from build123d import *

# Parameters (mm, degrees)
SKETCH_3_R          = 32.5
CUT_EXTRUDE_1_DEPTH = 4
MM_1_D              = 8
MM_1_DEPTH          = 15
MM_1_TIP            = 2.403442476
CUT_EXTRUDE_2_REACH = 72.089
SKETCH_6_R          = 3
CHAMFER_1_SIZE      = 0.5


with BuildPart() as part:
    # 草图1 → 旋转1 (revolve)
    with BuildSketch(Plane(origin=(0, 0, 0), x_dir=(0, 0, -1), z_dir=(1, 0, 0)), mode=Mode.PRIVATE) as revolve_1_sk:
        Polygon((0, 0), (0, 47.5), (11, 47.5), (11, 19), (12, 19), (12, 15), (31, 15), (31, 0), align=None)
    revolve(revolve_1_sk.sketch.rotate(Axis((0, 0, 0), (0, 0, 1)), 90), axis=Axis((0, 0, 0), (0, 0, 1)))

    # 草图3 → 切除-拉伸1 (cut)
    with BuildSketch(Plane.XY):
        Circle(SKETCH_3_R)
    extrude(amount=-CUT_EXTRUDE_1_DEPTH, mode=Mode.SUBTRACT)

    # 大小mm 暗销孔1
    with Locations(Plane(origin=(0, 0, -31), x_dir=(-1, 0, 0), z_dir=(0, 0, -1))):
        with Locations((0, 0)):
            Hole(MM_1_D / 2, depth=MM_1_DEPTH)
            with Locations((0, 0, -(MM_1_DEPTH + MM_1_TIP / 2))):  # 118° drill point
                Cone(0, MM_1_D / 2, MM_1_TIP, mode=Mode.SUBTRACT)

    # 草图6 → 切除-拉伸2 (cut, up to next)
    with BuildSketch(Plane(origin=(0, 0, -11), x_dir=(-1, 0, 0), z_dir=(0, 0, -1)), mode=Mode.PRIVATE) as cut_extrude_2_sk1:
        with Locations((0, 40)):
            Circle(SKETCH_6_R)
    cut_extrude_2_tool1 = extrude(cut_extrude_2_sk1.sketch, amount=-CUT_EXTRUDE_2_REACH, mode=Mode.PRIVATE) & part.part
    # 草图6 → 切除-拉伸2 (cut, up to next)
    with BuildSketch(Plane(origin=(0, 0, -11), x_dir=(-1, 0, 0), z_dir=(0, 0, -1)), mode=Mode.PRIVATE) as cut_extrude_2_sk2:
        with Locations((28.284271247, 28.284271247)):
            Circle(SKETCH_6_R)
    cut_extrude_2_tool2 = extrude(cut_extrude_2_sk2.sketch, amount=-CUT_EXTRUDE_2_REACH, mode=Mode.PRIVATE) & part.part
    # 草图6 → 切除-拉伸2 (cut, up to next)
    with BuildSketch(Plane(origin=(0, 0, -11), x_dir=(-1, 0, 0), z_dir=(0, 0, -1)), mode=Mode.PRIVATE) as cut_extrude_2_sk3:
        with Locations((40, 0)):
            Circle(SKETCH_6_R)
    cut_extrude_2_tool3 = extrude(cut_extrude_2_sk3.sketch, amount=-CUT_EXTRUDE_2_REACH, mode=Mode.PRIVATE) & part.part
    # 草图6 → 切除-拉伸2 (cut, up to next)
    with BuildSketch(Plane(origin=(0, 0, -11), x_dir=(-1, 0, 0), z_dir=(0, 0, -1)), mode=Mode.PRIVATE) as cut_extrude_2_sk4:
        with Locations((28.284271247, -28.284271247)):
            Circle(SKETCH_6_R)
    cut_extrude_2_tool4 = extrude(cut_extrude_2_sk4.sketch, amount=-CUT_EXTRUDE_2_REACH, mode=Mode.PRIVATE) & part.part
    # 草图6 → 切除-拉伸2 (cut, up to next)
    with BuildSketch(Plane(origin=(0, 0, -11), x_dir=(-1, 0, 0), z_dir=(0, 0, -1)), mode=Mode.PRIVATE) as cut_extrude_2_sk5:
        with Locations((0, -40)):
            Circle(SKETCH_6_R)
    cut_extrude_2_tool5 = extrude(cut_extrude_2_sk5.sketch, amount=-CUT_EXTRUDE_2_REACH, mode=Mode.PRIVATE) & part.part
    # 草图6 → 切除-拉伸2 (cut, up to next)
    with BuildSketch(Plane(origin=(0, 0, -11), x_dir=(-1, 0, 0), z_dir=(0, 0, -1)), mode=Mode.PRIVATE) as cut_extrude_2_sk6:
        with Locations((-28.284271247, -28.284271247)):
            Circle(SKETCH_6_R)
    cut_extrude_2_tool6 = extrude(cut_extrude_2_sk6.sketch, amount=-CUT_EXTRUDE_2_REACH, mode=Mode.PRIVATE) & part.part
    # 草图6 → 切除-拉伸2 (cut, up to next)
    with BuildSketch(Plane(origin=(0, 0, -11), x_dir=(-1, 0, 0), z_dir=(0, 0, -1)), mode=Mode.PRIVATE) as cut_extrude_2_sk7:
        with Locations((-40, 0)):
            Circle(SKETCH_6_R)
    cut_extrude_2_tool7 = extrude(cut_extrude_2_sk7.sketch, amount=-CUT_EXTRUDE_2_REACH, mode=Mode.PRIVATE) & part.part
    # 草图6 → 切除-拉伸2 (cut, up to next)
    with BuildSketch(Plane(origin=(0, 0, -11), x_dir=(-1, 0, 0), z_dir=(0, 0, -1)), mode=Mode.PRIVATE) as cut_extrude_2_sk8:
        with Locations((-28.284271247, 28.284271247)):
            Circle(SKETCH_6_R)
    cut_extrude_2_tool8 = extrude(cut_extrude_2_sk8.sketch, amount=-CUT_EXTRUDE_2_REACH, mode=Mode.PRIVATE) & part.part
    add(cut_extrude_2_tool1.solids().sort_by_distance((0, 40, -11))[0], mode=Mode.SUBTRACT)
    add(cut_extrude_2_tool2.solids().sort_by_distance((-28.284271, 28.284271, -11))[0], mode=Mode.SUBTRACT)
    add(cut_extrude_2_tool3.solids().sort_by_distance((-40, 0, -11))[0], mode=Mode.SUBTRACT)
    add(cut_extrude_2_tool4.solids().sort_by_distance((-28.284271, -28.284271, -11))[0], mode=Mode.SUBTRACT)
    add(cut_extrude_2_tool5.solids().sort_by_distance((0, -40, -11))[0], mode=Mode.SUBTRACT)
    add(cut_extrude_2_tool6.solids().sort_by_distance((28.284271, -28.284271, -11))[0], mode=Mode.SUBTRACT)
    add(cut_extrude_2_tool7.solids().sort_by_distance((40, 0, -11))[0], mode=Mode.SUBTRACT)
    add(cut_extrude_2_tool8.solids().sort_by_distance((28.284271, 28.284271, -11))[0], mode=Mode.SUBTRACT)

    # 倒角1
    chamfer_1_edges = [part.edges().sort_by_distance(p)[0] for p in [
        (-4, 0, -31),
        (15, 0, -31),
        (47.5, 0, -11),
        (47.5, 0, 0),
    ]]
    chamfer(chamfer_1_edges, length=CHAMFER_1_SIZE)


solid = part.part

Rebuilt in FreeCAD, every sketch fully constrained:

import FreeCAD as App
import Part
import Sketcher
Q = App.Units.Quantity


def edges_at(feature, points):
    """Names of the edges that pass closest to the given points."""
    edges = feature.Shape.Edges
    near = lambda p: min(range(len(edges)), key=lambda i: edges[i].distToShape(Part.Vertex(*p))[0])
    return sorted({f"Edge{near(p) + 1}" for p in points})

doc = App.newDocument("Part")
body = doc.addObject("PartDesign::Body", "Body")

sketch1 = doc.addObject("Sketcher::SketchObject", "Sketch")
body.addObject(sketch1)
sketch1.AttachmentSupport = (doc.YZ_Plane, [""])
sketch1.MapMode = "FlatFace"
sketch1.addGeometry(Part.LineSegment(App.Vector(47.5, 0, 0), App.Vector(0, 0, 0)), False)
sketch1.addGeometry(Part.LineSegment(App.Vector(0, 0, 0), App.Vector(0, -31, 0)), False)
sketch1.addGeometry(Part.LineSegment(App.Vector(0, -31, 0), App.Vector(15, -31, 0)), False)
sketch1.addGeometry(Part.LineSegment(App.Vector(15, -31, 0), App.Vector(15, -12, 0)), False)
sketch1.addGeometry(Part.LineSegment(App.Vector(15, -12, 0), App.Vector(19, -12, 0)), False)
sketch1.addGeometry(Part.LineSegment(App.Vector(19, -12, 0), App.Vector(19, -11, 0)), False)
sketch1.addGeometry(Part.LineSegment(App.Vector(19, -11, 0), App.Vector(47.5, -11, 0)), False)
sketch1.addGeometry(Part.LineSegment(App.Vector(47.5, -11, 0), App.Vector(47.5, 0, 0)), False)
sketch1.addConstraint(Sketcher.Constraint("Coincident", 0, 2, 1, 1))
sketch1.addConstraint(Sketcher.Constraint("Coincident", 1, 2, 2, 1))
sketch1.addConstraint(Sketcher.Constraint("Coincident", 2, 2, 3, 1))
sketch1.addConstraint(Sketcher.Constraint("Coincident", 3, 2, 4, 1))
sketch1.addConstraint(Sketcher.Constraint("Coincident", 4, 2, 5, 1))
sketch1.addConstraint(Sketcher.Constraint("Coincident", 5, 2, 6, 1))
sketch1.addConstraint(Sketcher.Constraint("Coincident", 6, 2, 7, 1))
sketch1.addConstraint(Sketcher.Constraint("Coincident", 7, 2, 0, 1))
sketch1.addConstraint(Sketcher.Constraint("Horizontal", 0))
sketch1.addConstraint(Sketcher.Constraint("Vertical", 1))
sketch1.addConstraint(Sketcher.Constraint("Horizontal", 2))
sketch1.addConstraint(Sketcher.Constraint("Vertical", 3))
sketch1.addConstraint(Sketcher.Constraint("Horizontal", 4))
sketch1.addConstraint(Sketcher.Constraint("Vertical", 5))
sketch1.addConstraint(Sketcher.Constraint("Horizontal", 6))
sketch1.addConstraint(Sketcher.Constraint("Vertical", 7))
sketch1.addConstraint(Sketcher.Constraint("Coincident", 0, 2, -1, 1))
sketch1.addConstraint(Sketcher.Constraint("DistanceX", 2, 1, 2, 2, Q("15 mm")))
sketch1.addConstraint(Sketcher.Constraint("DistanceX", 4, 1, 4, 2, Q("4 mm")))
sketch1.addConstraint(Sketcher.Constraint("DistanceY", 1, 2, 1, 1, Q("31 mm")))
sketch1.addConstraint(Sketcher.Constraint("DistanceY", 3, 1, 3, 2, Q("19 mm")))
sketch1.addConstraint(Sketcher.Constraint("DistanceY", 5, 1, 5, 2, Q("1 mm")))
sketch1.addConstraint(Sketcher.Constraint("DistanceX", 0, 2, 0, 1, Q("47.5 mm")))
revolution = doc.addObject("PartDesign::Revolution", "Revolution")
body.addObject(revolution)
revolution.Profile = sketch1
revolution.ReferenceAxis = (sketch1, ["V_Axis"])
revolution.Angle = 360

sketch2 = doc.addObject("Sketcher::SketchObject", "Sketch001")
body.addObject(sketch2)
sketch2.AttachmentSupport = (doc.XY_Plane, [""])
sketch2.MapMode = "FlatFace"
sketch2.addGeometry(Part.Circle(App.Vector(0, 0, 0), App.Vector(0, 0, 1), 32.5), False)
sketch2.addConstraint(Sketcher.Constraint("Coincident", 0, 3, -1, 1))
sketch2.addConstraint(Sketcher.Constraint("Diameter", 0, Q("65 mm")))
pocket1 = doc.addObject("PartDesign::Pocket", "Pocket")
body.addObject(pocket1)
pocket1.Profile = sketch2
pocket1.Length = 4

sketch3 = doc.addObject("Sketcher::SketchObject", "Sketch002")
body.addObject(sketch3)
sketch3.AttachmentSupport = (doc.XY_Plane, [""])
sketch3.MapMode = "FlatFace"
sketch3.AttachmentOffset = App.Placement(App.Vector(0, 0, -31), App.Rotation())
sketch3.addGeometry(Part.Circle(App.Vector(0, 0, 0), App.Vector(0, 0, 1), 4), False)
sketch3.addConstraint(Sketcher.Constraint("Coincident", 0, 3, -1, 1))
sketch3.addConstraint(Sketcher.Constraint("Diameter", 0, Q("8 mm")))
doc.recompute()
hole = doc.addObject("PartDesign::Hole", "Hole")
body.addObject(hole)
hole.Profile = sketch3
hole.ThreadType = "None"
hole.Diameter = 8
hole.DepthType = "Dimension"
hole.Depth = 15
hole.DrillPoint = "Angled"
hole.DrillPointAngle = 118
hole.Reversed = True

sketch4 = doc.addObject("Sketcher::SketchObject", "Sketch003")
body.addObject(sketch4)
sketch4.AttachmentSupport = (doc.XY_Plane, [""])
sketch4.MapMode = "FlatFace"
sketch4.AttachmentOffset = App.Placement(App.Vector(0, 0, -11), App.Rotation())
sketch4.addGeometry(Part.Circle(App.Vector(0, 40, 0), App.Vector(0, 0, 1), 3), False)
sketch4.addConstraint(Sketcher.Constraint("PointOnObject", 0, 3, -2))
sketch4.addConstraint(Sketcher.Constraint("Diameter", 0, Q("6 mm")))
sketch4.addConstraint(Sketcher.Constraint("DistanceY", -1, 1, 0, 3, Q("40 mm")))
pocket2 = doc.addObject("PartDesign::Pocket", "Pocket001")
body.addObject(pocket2)
pocket2.Profile = sketch4
pocket2.Type = "UpToFirst"
pocket2.Reversed = True

sketch5 = doc.addObject("Sketcher::SketchObject", "Sketch004")
body.addObject(sketch5)
sketch5.AttachmentSupport = (doc.XY_Plane, [""])
sketch5.MapMode = "FlatFace"
sketch5.AttachmentOffset = App.Placement(App.Vector(0, 0, -11), App.Rotation())
sketch5.addGeometry(Part.Circle(App.Vector(-28.284271, 28.284271, 0), App.Vector(0, 0, 1), 3), False)
sketch5.addConstraint(Sketcher.Constraint("Diameter", 0, Q("6 mm")))
sketch5.addConstraint(Sketcher.Constraint("DistanceX", 0, 3, -1, 1, Q("28.284271 mm")))
sketch5.addConstraint(Sketcher.Constraint("DistanceY", -1, 1, 0, 3, Q("28.284271 mm")))
pocket3 = doc.addObject("PartDesign::Pocket", "Pocket002")
body.addObject(pocket3)
pocket3.Profile = sketch5
pocket3.Type = "UpToFirst"
pocket3.Reversed = True

sketch6 = doc.addObject("Sketcher::SketchObject", "Sketch005")
body.addObject(sketch6)
sketch6.AttachmentSupport = (doc.XY_Plane, [""])
sketch6.MapMode = "FlatFace"
sketch6.AttachmentOffset = App.Placement(App.Vector(0, 0, -11), App.Rotation())
sketch6.addGeometry(Part.Circle(App.Vector(-40, 0, 0), App.Vector(0, 0, 1), 3), False)
sketch6.addConstraint(Sketcher.Constraint("PointOnObject", 0, 3, -1))
sketch6.addConstraint(Sketcher.Constraint("Diameter", 0, Q("6 mm")))
sketch6.addConstraint(Sketcher.Constraint("DistanceX", 0, 3, -1, 1, Q("40 mm")))
pocket4 = doc.addObject("PartDesign::Pocket", "Pocket003")
body.addObject(pocket4)
pocket4.Profile = sketch6
pocket4.Type = "UpToFirst"
pocket4.Reversed = True

sketch7 = doc.addObject("Sketcher::SketchObject", "Sketch006")
body.addObject(sketch7)
sketch7.AttachmentSupport = (doc.XY_Plane, [""])
sketch7.MapMode = "FlatFace"
sketch7.AttachmentOffset = App.Placement(App.Vector(0, 0, -11), App.Rotation())
sketch7.addGeometry(Part.Circle(App.Vector(-28.284271, -28.284271, 0), App.Vector(0, 0, 1), 3), False)
sketch7.addConstraint(Sketcher.Constraint("Diameter", 0, Q("6 mm")))
sketch7.addConstraint(Sketcher.Constraint("DistanceX", 0, 3, -1, 1, Q("28.284271 mm")))
sketch7.addConstraint(Sketcher.Constraint("DistanceY", 0, 3, -1, 1, Q("28.284271 mm")))
pocket5 = doc.addObject("PartDesign::Pocket", "Pocket004")
body.addObject(pocket5)
pocket5.Profile = sketch7
pocket5.Type = "UpToFirst"
pocket5.Reversed = True

sketch8 = doc.addObject("Sketcher::SketchObject", "Sketch007")
body.addObject(sketch8)
sketch8.AttachmentSupport = (doc.XY_Plane, [""])
sketch8.MapMode = "FlatFace"
sketch8.AttachmentOffset = App.Placement(App.Vector(0, 0, -11), App.Rotation())
sketch8.addGeometry(Part.Circle(App.Vector(0, -40, 0), App.Vector(0, 0, 1), 3), False)
sketch8.addConstraint(Sketcher.Constraint("PointOnObject", 0, 3, -2))
sketch8.addConstraint(Sketcher.Constraint("Diameter", 0, Q("6 mm")))
sketch8.addConstraint(Sketcher.Constraint("DistanceY", 0, 3, -1, 1, Q("40 mm")))
pocket6 = doc.addObject("PartDesign::Pocket", "Pocket005")
body.addObject(pocket6)
pocket6.Profile = sketch8
pocket6.Type = "UpToFirst"
pocket6.Reversed = True

sketch9 = doc.addObject("Sketcher::SketchObject", "Sketch008")
body.addObject(sketch9)
sketch9.AttachmentSupport = (doc.XY_Plane, [""])
sketch9.MapMode = "FlatFace"
sketch9.AttachmentOffset = App.Placement(App.Vector(0, 0, -11), App.Rotation())
sketch9.addGeometry(Part.Circle(App.Vector(28.284271, -28.284271, 0), App.Vector(0, 0, 1), 3), False)
sketch9.addConstraint(Sketcher.Constraint("Diameter", 0, Q("6 mm")))
sketch9.addConstraint(Sketcher.Constraint("DistanceX", -1, 1, 0, 3, Q("28.284271 mm")))
sketch9.addConstraint(Sketcher.Constraint("DistanceY", 0, 3, -1, 1, Q("28.284271 mm")))
pocket7 = doc.addObject("PartDesign::Pocket", "Pocket006")
body.addObject(pocket7)
pocket7.Profile = sketch9
pocket7.Type = "UpToFirst"
pocket7.Reversed = True

sketch10 = doc.addObject("Sketcher::SketchObject", "Sketch009")
body.addObject(sketch10)
sketch10.AttachmentSupport = (doc.XY_Plane, [""])
sketch10.MapMode = "FlatFace"
sketch10.AttachmentOffset = App.Placement(App.Vector(0, 0, -11), App.Rotation())
sketch10.addGeometry(Part.Circle(App.Vector(40, 0, 0), App.Vector(0, 0, 1), 3), False)
sketch10.addConstraint(Sketcher.Constraint("PointOnObject", 0, 3, -1))
sketch10.addConstraint(Sketcher.Constraint("Diameter", 0, Q("6 mm")))
sketch10.addConstraint(Sketcher.Constraint("DistanceX", -1, 1, 0, 3, Q("40 mm")))
pocket8 = doc.addObject("PartDesign::Pocket", "Pocket007")
body.addObject(pocket8)
pocket8.Profile = sketch10
pocket8.Type = "UpToFirst"
pocket8.Reversed = True

sketch11 = doc.addObject("Sketcher::SketchObject", "Sketch010")
body.addObject(sketch11)
sketch11.AttachmentSupport = (doc.XY_Plane, [""])
sketch11.MapMode = "FlatFace"
sketch11.AttachmentOffset = App.Placement(App.Vector(0, 0, -11), App.Rotation())
sketch11.addGeometry(Part.Circle(App.Vector(28.284271, 28.284271, 0), App.Vector(0, 0, 1), 3), False)
sketch11.addConstraint(Sketcher.Constraint("Diameter", 0, Q("6 mm")))
sketch11.addConstraint(Sketcher.Constraint("DistanceX", -1, 1, 0, 3, Q("28.284271 mm")))
sketch11.addConstraint(Sketcher.Constraint("DistanceY", -1, 1, 0, 3, Q("28.284271 mm")))
pocket9 = doc.addObject("PartDesign::Pocket", "Pocket008")
body.addObject(pocket9)
pocket9.Profile = sketch11
pocket9.Type = "UpToFirst"
pocket9.Reversed = True
doc.recompute()

chamfer = doc.addObject("PartDesign::Chamfer", "Chamfer")
body.addObject(chamfer)
chamfer.Base = (pocket9, edges_at(pocket9, [
    (-4, 0, -31),
    (15, 0, -31),
    (47.5, 0, -11),
    (47.5, 0, 0),
]))
chamfer.Size = 0.5

doc.recompute()
